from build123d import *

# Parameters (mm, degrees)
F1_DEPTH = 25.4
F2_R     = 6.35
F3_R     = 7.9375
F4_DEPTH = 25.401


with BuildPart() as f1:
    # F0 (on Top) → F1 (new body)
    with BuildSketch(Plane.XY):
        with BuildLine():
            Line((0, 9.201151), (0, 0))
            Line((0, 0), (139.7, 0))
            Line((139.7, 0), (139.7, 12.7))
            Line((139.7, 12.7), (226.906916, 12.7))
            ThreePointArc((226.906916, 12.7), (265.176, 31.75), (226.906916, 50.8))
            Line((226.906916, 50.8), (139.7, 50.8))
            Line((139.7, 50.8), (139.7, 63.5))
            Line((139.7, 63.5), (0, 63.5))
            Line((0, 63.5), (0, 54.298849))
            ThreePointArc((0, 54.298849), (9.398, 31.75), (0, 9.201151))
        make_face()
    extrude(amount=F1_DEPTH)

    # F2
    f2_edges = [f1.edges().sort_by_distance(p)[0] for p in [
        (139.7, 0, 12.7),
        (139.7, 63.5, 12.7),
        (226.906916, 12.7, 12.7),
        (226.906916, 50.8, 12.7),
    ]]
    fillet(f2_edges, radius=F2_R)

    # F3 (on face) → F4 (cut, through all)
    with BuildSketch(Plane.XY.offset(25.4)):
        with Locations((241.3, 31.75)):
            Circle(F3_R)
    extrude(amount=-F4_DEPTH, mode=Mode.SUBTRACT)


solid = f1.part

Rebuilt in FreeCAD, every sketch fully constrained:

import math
import FreeCAD as App
import Part
import Sketcher
Q = App.Units.Quantity


def edges_at(feature, points):
    """Names of the edges that pass closest to the given points."""
    edges = feature.Shape.Edges
    near = lambda p: min(range(len(edges)), key=lambda i: edges[i].distToShape(Part.Vertex(*p))[0])
    return sorted({f"Edge{near(p) + 1}" for p in points})

doc = App.newDocument("Part")
body = doc.addObject("PartDesign::Body", "Body")

sketch1 = doc.addObject("Sketcher::SketchObject", "Sketch")
body.addObject(sketch1)
sketch1.AttachmentSupport = (doc.XY_Plane, [""])
sketch1.MapMode = "FlatFace"
sketch1.addGeometry(Part.LineSegment(App.Vector(0, 9, 0), App.Vector(0, 0, 0)), False)
sketch1.addGeometry(Part.LineSegment(App.Vector(0, 0, 0), App.Vector(140, 0, 0)), False)
sketch1.addGeometry(Part.LineSegment(App.Vector(140, 0, 0), App.Vector(140, 13, 0)), False)
sketch1.addGeometry(Part.LineSegment(App.Vector(140, 13, 0), App.Vector(227, 13, 0)), False)
sketch1.addGeometry(Part.ArcOfCircle(Part.Circle(App.Vector(241, 32, 0), App.Vector(0, 0, 1), 24), math.radians(-127), math.radians(127)), False)
sketch1.addGeometry(Part.LineSegment(App.Vector(227, 51, 0), App.Vector(140, 51, 0)), False)
sketch1.addGeometry(Part.LineSegment(App.Vector(140, 51, 0), App.Vector(140, 64, 0)), False)
sketch1.addGeometry(Part.LineSegment(App.Vector(140, 64, 0), App.Vector(0, 64, 0)), False)
sketch1.addGeometry(Part.LineSegment(App.Vector(0, 64, 0), App.Vector(0, 54, 0)), False)
sketch1.addGeometry(Part.ArcOfCircle(Part.Circle(App.Vector(-22, 32, 0), App.Vector(0, 0, 1), 32), math.radians(-45), math.radians(45)), False)
sketch1.addConstraint(Sketcher.Constraint("Coincident", 0, 2, 1, 1))
sketch1.addConstraint(Sketcher.Constraint("Coincident", 1, 2, 2, 1))
sketch1.addConstraint(Sketcher.Constraint("Coincident", 2, 2, 3, 1))
sketch1.addConstraint(Sketcher.Constraint("Coincident", 3, 2, 4, 1))
sketch1.addConstraint(Sketcher.Constraint("Coincident", 4, 2, 5, 1))
sketch1.addConstraint(Sketcher.Constraint("Coincident", 5, 2, 6, 1))
sketch1.addConstraint(Sketcher.Constraint("Coincident", 6, 2, 7, 1))
sketch1.addConstraint(Sketcher.Constraint("Coincident", 7, 2, 8, 1))
sketch1.addConstraint(Sketcher.Constraint("Coincident", 8, 2, 9, 2))
sketch1.addConstraint(Sketcher.Constraint("Coincident", 9, 1, 0, 1))
sketch1.addConstraint(Sketcher.Constraint("Vertical", 0))
sketch1.addConstraint(Sketcher.Constraint("Horizontal", 1))
sketch1.addConstraint(Sketcher.Constraint("Vertical", 2))
sketch1.addConstraint(Sketcher.Constraint("Horizontal", 3))
sketch1.addConstraint(Sketcher.Constraint("Horizontal", 5))
sketch1.addConstraint(Sketcher.Constraint("Vertical", 6))
sketch1.addConstraint(Sketcher.Constraint("Horizontal", 7))
sketch1.addConstraint(Sketcher.Constraint("Vertical", 8))
sketch1.addConstraint(Sketcher.Constraint("Coincident", 0, 2, -1, 1))
sketch1.addConstraint(Sketcher.Constraint("PointOnObject", 7, 2, -2))
sketch1.addConstraint(Sketcher.Constraint("Horizontal", 4, 3, 9, 3))
sketch1.addConstraint(Sketcher.Constraint("Vertical", 3, 2, 4, 2))
sketch1.addConstraint(Sketcher.Constraint("Vertical", 2, 2, 5, 2))
sketch1.addConstraint(Sketcher.Constraint("Equal", 2, 6))
sketch1.addConstraint(Sketcher.Constraint("Radius", 4, Q("0.94 in")))
sketch1.addConstraint(Sketcher.Constraint("Radius", 9, Q("1.25 in")))
sketch1.addConstraint(Sketcher.Constraint("DistanceX", 1, 1, 1, 2, Q("5.5 in")))
sketch1.addConstraint(Sketcher.Constraint("DistanceY", 2, 1, 2, 2, Q("0.5 in")))
sketch1.addConstraint(Sketcher.Constraint("DistanceY", -1, 1, 4, 2, Q("2 in")))
sketch1.addConstraint(Sketcher.Constraint("DistanceX", 1, 2, 4, 3, Q("4 in")))
sketch1.addConstraint(Sketcher.Constraint("DistanceX", 9, 3, -1, 1, Q("0.88 in")))
pad1 = doc.addObject("PartDesign::Pad", "Pad")
body.addObject(pad1)
pad1.Profile = sketch1
pad1.Length = Q("1 in")
doc.recompute()

fillet = doc.addObject("PartDesign::Fillet", "Fillet")
body.addObject(fillet)
fillet.Base = (pad1, edges_at(pad1, [
    (139.7, 0, 12.7),
    (139.7, 63.5, 12.7),
    (226.907, 12.7, 12.7),
    (226.907, 50.8, 12.7),
]))
fillet.Radius = Q("0.25 in")

sketch2 = doc.addObject("Sketcher::SketchObject", "Sketch001")
body.addObject(sketch2)
sketch2.AttachmentSupport = (doc.XY_Plane, [""])
sketch2.MapMode = "FlatFace"
sketch2.AttachmentOffset = App.Placement(App.Vector(0, 0, 1 * 25.4), App.Rotation())
sketch2.addGeometry(Part.Circle(App.Vector(241, 32, 0), App.Vector(0, 0, 1), 8), False)
sketch2.addConstraint(Sketcher.Constraint("Diameter", 0, Q("0.625 in")))
sketch2.addConstraint(Sketcher.Constraint("DistanceX", -1, 1, 0, 3, Q("9.5 in")))
sketch2.addConstraint(Sketcher.Constraint("DistanceY", -1, 1, 0, 3, Q("1.25 in")))
pocket1 = doc.addObject("PartDesign::Pocket", "Pocket")
body.addObject(pocket1)
pocket1.Profile = sketch2
pocket1.Type = "ThroughAll"

doc.recompute()
